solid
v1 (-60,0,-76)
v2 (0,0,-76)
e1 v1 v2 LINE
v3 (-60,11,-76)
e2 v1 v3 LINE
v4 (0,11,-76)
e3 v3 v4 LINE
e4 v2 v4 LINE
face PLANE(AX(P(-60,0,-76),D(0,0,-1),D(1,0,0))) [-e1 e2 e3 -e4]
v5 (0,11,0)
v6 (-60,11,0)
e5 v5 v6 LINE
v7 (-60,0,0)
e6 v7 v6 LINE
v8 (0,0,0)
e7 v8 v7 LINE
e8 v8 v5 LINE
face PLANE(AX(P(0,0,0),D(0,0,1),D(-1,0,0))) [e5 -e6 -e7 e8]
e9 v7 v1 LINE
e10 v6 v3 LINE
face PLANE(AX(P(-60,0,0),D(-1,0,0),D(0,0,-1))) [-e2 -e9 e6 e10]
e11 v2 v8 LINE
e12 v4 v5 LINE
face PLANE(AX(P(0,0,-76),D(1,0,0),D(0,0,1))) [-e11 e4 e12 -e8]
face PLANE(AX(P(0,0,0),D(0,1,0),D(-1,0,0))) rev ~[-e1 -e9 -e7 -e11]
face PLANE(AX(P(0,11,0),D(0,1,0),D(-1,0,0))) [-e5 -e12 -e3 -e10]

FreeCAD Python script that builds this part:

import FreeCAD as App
import Part
import Sketcher
from FreeCAD import Vector
Q = App.Units.Quantity


def add_polygon(sketch, points):
    """Adds a closed chain of lines whose ends are joined by coincident constraints."""
    first, n = sketch.GeometryCount, len(points)
    for a, b in zip(points, points[1:] + points[:1]):
        sketch.addGeometry(Part.LineSegment(App.Vector(*a, 0), App.Vector(*b, 0)), False)
    for i in range(n):
        sketch.addConstraint(Sketcher.Constraint("Coincident", first + i, 2, first + (i + 1) % n, 1))

doc = App.newDocument("Part")
body = doc.addObject("PartDesign::Body", "Body")

sketch1 = body.newObject("Sketcher::SketchObject", "Sketch")
sketch1.AttachmentSupport = (doc.getObject("XZ_Plane"), [""])
sketch1.MapMode = "FlatFace"
add_polygon(sketch1, [(-60, 0), (0, 0), (0, -76), (-60, -76)])
sketch1.addConstraint([
    Sketcher.Constraint("Horizontal", 0),
    Sketcher.Constraint("Vertical", 1),
    Sketcher.Constraint("Horizontal", 2),
    Sketcher.Constraint("Vertical", 3),
    Sketcher.Constraint("Coincident", 0, 2, -1, 1),
    Sketcher.Constraint("DistanceX", 0, 1, 0, 2, Q("60 mm")),
    Sketcher.Constraint("DistanceY", 1, 2, 1, 1, Q("76 mm")),
])
pad1 = body.newObject("PartDesign::Pad", "Pad")
pad1.Profile = sketch1
pad1.Length = 11
pad1.Reversed = True

doc.recompute()
